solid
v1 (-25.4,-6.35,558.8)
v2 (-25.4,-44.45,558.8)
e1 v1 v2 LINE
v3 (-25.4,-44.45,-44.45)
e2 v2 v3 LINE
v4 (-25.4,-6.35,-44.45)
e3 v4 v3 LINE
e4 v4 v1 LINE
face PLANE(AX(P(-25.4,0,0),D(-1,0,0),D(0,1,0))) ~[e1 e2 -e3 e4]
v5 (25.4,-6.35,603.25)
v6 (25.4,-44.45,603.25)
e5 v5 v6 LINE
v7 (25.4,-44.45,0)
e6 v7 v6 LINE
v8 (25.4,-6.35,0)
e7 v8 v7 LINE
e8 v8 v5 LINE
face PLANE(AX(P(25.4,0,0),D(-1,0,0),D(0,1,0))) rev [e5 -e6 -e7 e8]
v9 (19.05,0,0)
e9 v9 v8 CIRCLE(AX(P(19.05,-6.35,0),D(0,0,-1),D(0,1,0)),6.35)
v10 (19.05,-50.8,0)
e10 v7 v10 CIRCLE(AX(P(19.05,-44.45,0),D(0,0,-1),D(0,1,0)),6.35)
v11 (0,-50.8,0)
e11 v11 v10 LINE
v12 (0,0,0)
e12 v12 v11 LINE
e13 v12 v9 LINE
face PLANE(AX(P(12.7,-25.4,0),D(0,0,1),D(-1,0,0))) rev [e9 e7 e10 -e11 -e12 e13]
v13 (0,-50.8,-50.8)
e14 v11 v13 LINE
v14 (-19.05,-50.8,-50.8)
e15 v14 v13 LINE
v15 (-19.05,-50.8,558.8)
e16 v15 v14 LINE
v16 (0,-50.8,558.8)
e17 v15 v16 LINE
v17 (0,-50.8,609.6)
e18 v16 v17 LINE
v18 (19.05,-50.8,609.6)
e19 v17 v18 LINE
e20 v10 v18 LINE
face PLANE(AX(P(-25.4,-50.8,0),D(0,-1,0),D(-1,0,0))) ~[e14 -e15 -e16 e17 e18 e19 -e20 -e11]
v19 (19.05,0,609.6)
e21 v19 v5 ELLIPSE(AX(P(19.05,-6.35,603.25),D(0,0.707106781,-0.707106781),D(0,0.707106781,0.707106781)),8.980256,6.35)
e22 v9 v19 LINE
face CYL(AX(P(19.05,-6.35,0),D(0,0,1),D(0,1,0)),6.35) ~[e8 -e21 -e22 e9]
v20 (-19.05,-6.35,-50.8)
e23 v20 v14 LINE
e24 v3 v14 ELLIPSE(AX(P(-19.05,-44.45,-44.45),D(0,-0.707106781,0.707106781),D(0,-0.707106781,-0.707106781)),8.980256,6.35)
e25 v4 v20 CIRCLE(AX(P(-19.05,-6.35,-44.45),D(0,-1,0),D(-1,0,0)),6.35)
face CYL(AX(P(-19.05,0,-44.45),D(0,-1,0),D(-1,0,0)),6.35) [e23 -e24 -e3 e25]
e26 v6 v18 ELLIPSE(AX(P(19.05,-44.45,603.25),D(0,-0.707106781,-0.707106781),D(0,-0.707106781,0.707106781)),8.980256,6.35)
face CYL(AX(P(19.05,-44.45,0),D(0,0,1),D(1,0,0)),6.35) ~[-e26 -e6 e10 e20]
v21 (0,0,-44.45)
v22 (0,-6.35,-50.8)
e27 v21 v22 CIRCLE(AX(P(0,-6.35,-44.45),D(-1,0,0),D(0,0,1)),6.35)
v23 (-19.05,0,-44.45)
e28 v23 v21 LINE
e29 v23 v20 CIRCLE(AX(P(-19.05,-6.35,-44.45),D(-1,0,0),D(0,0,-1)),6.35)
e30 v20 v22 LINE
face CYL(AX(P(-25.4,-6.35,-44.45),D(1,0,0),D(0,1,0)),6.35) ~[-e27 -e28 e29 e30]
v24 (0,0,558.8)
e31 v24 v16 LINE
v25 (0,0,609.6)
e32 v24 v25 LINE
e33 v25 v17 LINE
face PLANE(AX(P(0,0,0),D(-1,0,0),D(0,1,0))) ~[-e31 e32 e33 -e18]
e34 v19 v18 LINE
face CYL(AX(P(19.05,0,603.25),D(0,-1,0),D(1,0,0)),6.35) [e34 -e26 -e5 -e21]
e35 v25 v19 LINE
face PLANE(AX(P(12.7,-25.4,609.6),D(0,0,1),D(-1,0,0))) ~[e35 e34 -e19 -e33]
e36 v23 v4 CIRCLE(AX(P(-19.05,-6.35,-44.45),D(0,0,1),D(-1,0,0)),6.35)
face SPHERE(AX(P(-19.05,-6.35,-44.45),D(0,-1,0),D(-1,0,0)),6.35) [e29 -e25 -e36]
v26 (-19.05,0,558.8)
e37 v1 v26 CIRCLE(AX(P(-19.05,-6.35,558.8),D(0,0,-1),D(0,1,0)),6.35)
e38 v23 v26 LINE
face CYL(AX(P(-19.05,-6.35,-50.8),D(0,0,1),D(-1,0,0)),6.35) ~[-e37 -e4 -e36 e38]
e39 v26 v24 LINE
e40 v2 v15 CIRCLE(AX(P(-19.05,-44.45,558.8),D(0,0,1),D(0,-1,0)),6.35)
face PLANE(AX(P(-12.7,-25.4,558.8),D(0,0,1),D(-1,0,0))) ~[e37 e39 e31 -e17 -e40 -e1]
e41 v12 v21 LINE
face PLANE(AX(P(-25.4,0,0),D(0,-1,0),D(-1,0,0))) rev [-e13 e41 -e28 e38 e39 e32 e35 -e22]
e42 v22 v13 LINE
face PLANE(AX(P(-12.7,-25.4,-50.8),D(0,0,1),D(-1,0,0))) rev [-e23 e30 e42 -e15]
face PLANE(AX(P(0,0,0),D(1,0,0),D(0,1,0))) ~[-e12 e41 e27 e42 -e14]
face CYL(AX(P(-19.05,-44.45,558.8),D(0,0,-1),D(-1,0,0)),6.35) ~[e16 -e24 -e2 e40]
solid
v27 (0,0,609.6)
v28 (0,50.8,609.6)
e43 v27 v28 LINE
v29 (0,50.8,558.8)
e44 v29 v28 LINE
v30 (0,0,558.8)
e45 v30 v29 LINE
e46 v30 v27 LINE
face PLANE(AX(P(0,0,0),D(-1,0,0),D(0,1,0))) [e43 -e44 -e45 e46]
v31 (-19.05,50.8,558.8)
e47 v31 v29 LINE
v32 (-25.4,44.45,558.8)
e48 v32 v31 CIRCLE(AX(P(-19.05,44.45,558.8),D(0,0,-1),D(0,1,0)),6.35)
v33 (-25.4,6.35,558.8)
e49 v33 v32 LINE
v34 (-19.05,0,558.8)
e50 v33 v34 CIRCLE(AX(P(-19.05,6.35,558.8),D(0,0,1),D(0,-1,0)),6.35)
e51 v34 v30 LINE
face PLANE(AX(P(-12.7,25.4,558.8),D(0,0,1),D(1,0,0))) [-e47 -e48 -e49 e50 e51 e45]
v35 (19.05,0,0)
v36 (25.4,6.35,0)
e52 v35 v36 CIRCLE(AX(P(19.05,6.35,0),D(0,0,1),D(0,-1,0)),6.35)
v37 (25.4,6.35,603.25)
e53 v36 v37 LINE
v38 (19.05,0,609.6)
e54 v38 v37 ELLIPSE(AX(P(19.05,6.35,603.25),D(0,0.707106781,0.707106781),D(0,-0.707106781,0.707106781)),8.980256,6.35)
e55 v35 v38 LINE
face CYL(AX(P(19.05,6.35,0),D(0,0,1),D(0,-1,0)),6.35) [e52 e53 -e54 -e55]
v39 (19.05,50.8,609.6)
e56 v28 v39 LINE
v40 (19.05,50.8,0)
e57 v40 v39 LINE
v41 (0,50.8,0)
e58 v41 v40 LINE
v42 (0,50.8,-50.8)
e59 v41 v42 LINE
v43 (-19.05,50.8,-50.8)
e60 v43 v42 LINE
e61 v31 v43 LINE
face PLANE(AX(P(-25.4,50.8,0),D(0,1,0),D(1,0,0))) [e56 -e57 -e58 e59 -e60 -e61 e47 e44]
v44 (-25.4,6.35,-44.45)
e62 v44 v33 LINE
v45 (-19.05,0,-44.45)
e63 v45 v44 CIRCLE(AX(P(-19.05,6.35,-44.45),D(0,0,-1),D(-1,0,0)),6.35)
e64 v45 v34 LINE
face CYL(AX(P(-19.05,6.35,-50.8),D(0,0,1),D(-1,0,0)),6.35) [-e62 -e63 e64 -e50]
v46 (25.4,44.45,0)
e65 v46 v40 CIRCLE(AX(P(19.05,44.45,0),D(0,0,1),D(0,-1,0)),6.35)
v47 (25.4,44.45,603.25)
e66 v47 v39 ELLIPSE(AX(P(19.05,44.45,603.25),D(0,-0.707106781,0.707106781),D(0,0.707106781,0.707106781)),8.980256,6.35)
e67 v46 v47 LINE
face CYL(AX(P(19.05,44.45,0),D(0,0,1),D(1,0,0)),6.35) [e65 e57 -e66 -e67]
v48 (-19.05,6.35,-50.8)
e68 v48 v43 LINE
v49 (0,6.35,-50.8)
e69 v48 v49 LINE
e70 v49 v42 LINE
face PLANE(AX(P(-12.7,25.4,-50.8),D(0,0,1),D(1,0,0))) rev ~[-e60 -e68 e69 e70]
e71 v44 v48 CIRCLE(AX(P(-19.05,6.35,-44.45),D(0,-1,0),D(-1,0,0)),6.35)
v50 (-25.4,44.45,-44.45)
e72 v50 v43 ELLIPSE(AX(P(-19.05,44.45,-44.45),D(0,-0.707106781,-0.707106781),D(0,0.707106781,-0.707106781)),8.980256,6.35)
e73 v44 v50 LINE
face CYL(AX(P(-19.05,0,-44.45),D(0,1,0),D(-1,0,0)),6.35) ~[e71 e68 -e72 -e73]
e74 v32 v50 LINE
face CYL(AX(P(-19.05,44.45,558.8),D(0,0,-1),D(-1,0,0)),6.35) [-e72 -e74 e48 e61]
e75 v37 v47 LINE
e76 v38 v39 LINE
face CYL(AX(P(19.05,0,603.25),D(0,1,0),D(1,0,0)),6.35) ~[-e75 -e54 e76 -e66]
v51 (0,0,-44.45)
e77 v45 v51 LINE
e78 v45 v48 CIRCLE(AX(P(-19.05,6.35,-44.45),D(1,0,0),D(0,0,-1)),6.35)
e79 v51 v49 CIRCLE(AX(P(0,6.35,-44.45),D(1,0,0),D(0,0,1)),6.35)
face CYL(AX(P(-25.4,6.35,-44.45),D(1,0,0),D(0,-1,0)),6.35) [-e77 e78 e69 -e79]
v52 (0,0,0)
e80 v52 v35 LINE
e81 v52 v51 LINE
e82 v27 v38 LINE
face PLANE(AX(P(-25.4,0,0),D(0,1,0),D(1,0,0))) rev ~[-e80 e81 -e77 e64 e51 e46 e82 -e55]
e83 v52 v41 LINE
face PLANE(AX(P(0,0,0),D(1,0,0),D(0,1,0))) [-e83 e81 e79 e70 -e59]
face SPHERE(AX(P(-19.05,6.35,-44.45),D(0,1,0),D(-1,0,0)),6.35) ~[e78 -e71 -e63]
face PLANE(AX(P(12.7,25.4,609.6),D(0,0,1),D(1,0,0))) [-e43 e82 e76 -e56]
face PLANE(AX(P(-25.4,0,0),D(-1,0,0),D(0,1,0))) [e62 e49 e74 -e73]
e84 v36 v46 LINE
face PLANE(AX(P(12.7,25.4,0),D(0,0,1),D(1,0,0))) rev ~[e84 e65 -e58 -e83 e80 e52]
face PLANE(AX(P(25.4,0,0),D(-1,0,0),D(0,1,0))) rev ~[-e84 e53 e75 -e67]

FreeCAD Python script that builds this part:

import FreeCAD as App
import Part
import Sketcher
Q = App.Units.Quantity


def edges_at(feature, points):
    """Names of the edges that pass closest to the given points."""
    edges = feature.Shape.Edges
    near = lambda p: min(range(len(edges)), key=lambda i: edges[i].distToShape(Part.Vertex(*p))[0])
    return sorted({f"Edge{near(p) + 1}" for p in points})

doc = App.newDocument("Part")
body = doc.addObject("PartDesign::Body", "Body")

# Sketch on XY plane
sketch1 = body.newObject("Sketcher::SketchObject", "Sketch")
sketch1.AttachmentSupport = (doc.getObject("XY_Plane"), [""])
sketch1.MapMode = "FlatFace"
sketch1.addGeometry(Part.LineSegment(App.Vector(0, 51, 0), App.Vector(0, 0, 0)), False)
sketch1.addGeometry(Part.LineSegment(App.Vector(0, 0, 0), App.Vector(25, 0, 0)), False)
sketch1.addGeometry(Part.LineSegment(App.Vector(25, 0, 0), App.Vector(25, 51, 0)), False)
sketch1.addGeometry(Part.LineSegment(App.Vector(25, 51, 0), App.Vector(0, 51, 0)), False)
sketch1.addConstraint(Sketcher.Constraint("Coincident", 0, 2, 1, 1))
sketch1.addConstraint(Sketcher.Constraint("Coincident", 1, 2, 2, 1))
sketch1.addConstraint(Sketcher.Constraint("Coincident", 2, 2, 3, 1))
sketch1.addConstraint(Sketcher.Constraint("Coincident", 3, 2, 0, 1))
sketch1.addConstraint(Sketcher.Constraint("Vertical", 0))
sketch1.addConstraint(Sketcher.Constraint("Horizontal", 1))
sketch1.addConstraint(Sketcher.Constraint("Vertical", 2))
sketch1.addConstraint(Sketcher.Constraint("Horizontal", 3))
sketch1.addConstraint(Sketcher.Constraint("Coincident", 0, 2, -1, 1))
sketch1.addConstraint(Sketcher.Constraint("DistanceX", 1, 1, 1, 2, Q("1 in")))
sketch1.addConstraint(Sketcher.Constraint("DistanceY", 0, 2, 0, 1, Q("2 in")))
pad1 = body.newObject("PartDesign::Pad", "Pad")
pad1.Profile = sketch1
pad1.Length = Q("24 in")

# Sketch on XY plane
sketch2 = body.newObject("Sketcher::SketchObject", "Sketch001")
sketch2.AttachmentSupport = (doc.getObject("XY_Plane"), [""])
sketch2.MapMode = "FlatFace"
sketch2.addGeometry(Part.LineSegment(App.Vector(-25, 51, 0), App.Vector(-25, 0, 0)), False)
sketch2.addGeometry(Part.LineSegment(App.Vector(-25, 0, 0), App.Vector(0, 0, 0)), False)
sketch2.addGeometry(Part.LineSegment(App.Vector(0, 0, 0), App.Vector(0, 51, 0)), False)
sketch2.addGeometry(Part.LineSegment(App.Vector(0, 51, 0), App.Vector(-25, 51, 0)), False)
sketch2.addConstraint(Sketcher.Constraint("Coincident", 0, 2, 1, 1))
sketch2.addConstraint(Sketcher.Constraint("Coincident", 1, 2, 2, 1))
sketch2.addConstraint(Sketcher.Constraint("Coincident", 2, 2, 3, 1))
sketch2.addConstraint(Sketcher.Constraint("Coincident", 3, 2, 0, 1))
sketch2.addConstraint(Sketcher.Constraint("Vertical", 0))
sketch2.addConstraint(Sketcher.Constraint("Horizontal", 1))
sketch2.addConstraint(Sketcher.Constraint("Vertical", 2))
sketch2.addConstraint(Sketcher.Constraint("Horizontal", 3))
sketch2.addConstraint(Sketcher.Constraint("Coincident", 1, 2, -1, 1))
sketch2.addConstraint(Sketcher.Constraint("DistanceX", 1, 1, 1, 2, Q("1 in")))
sketch2.addConstraint(Sketcher.Constraint("DistanceY", 0, 2, 0, 1, Q("2 in")))
pad2 = body.newObject("PartDesign::Pad", "Pad001")
pad2.Profile = sketch2
pad2.Type = "TwoLengths"
pad2.Length = Q("2 in")
pad2.Length2 = Q("22 in")
pad2.Reversed = True
doc.recompute()

fillet = body.newObject("PartDesign::Fillet", "Fillet")
fillet.Base = (pad2, edges_at(pad2, [
    (25.4, 0, 304.8),
    (25.4, 50.8, 304.8),
    (-25.4, 25.4, -50.8),
    (-25.4, 0, 254),
    (-25.4, 50.8, 254),
    (-12.7, 0, -50.8),
    (25.4, 25.4, 609.6),
]))
fillet.Radius = Q("0.25 in")
body2 = doc.addObject("PartDesign::Body", "Body001")
doc.recompute()

mirroring = doc.addObject("Part::Mirroring", "Mirroring")
mirroring.Source = body
mirroring.Base = App.Vector(0, 0, 0)
mirroring.Normal = App.Vector(0, -1, 0)
body2.BaseFeature = mirroring
doc.recompute()
mirroring.Visibility = False

doc.recompute()
